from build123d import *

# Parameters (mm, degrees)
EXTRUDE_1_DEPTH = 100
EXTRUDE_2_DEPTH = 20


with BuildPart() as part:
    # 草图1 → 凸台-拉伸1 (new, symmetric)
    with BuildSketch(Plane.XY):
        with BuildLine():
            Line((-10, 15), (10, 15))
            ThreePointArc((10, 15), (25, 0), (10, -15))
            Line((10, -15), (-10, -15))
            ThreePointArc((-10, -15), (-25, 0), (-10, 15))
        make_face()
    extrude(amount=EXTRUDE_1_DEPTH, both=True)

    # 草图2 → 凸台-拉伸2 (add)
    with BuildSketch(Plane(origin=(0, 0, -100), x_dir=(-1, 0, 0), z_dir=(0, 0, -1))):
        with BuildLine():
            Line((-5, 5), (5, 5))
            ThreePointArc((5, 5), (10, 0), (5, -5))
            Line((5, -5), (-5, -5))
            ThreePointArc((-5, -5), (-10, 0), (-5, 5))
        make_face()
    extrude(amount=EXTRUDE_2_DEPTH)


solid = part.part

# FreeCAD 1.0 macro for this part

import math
import FreeCAD as App
import Part
import Sketcher

V = App.Vector
Q = App.Units.Quantity

doc = App.newDocument("Part")
body = doc.addObject("PartDesign::Body", "Body")

sketch1 = body.newObject("Sketcher::SketchObject", "Sketch")
sketch1.AttachmentSupport = (doc.getObject("XY_Plane"), [""])
sketch1.MapMode = "FlatFace"
sketch1.addGeometry([
    Part.LineSegment(V(10, 15, 0), V(-10, 15, 0)),
    Part.ArcOfCircle(Part.Circle(V(-10, 0, 0), V(0, 0, 1), 15), math.radians(90), math.radians(270)),
    Part.LineSegment(V(-10, -15, 0), V(10, -15, 0)),
    Part.ArcOfCircle(Part.Circle(V(10, 0, 0), V(0, 0, 1), 15), math.radians(-90), math.radians(90)),
], False)
sketch1.addConstraint([
    Sketcher.Constraint("Tangent", 0, 2, 1, 1),
    Sketcher.Constraint("Tangent", 1, 2, 2, 1),
    Sketcher.Constraint("Tangent", 2, 2, 3, 1),
    Sketcher.Constraint("Tangent", 3, 2, 0, 1),
    Sketcher.Constraint("Horizontal", 0),
    Sketcher.Constraint("Horizontal", 2),
    Sketcher.Constraint("Symmetric", 1, 3, 3, 3, -1, 1),
    Sketcher.Constraint("Radius", 1, Q("15 mm")),
    Sketcher.Constraint("DistanceX", 0, 2, 0, 1, Q("20 mm")),
])
pad1 = body.newObject("PartDesign::Pad", "Pad")
pad1.Profile = sketch1
pad1.Length = 200
pad1.Midplane = True

sketch2 = body.newObject("Sketcher::SketchObject", "Sketch001")
sketch2.AttachmentSupport = (doc.getObject("XY_Plane"), [""])
sketch2.MapMode = "FlatFace"
sketch2.AttachmentOffset = App.Placement(V(0, 0, -100), App.Rotation())
sketch2.addGeometry([
    Part.LineSegment(V(-5, 5, 0), V(5, 5, 0)),
    Part.ArcOfCircle(Part.Circle(V(5, 0, 0), V(0, 0, 1), 5), math.radians(-90), math.radians(90)),
    Part.LineSegment(V(5, -5, 0), V(-5, -5, 0)),
    Part.ArcOfCircle(Part.Circle(V(-5, 0, 0), V(0, 0, 1), 5), math.radians(90), math.radians(270)),
], False)
sketch2.addConstraint([
    Sketcher.Constraint("Tangent", 0, 2, 1, 2),
    Sketcher.Constraint("Tangent", 1, 1, 2, 1),
    Sketcher.Constraint("Tangent", 2, 2, 3, 2),
    Sketcher.Constraint("Tangent", 3, 1, 0, 1),
    Sketcher.Constraint("Horizontal", 0),
    Sketcher.Constraint("Horizontal", 2),
    Sketcher.Constraint("Symmetric", 1, 3, 3, 3, -1, 1),
    Sketcher.Constraint("Radius", 1, Q("5 mm")),
    Sketcher.Constraint("DistanceX", 0, 1, 0, 2, Q("10 mm")),
])
pad2 = body.newObject("PartDesign::Pad", "Pad001")
pad2.Profile = sketch2
pad2.Length = 20
pad2.Reversed = True

doc.recompute()
